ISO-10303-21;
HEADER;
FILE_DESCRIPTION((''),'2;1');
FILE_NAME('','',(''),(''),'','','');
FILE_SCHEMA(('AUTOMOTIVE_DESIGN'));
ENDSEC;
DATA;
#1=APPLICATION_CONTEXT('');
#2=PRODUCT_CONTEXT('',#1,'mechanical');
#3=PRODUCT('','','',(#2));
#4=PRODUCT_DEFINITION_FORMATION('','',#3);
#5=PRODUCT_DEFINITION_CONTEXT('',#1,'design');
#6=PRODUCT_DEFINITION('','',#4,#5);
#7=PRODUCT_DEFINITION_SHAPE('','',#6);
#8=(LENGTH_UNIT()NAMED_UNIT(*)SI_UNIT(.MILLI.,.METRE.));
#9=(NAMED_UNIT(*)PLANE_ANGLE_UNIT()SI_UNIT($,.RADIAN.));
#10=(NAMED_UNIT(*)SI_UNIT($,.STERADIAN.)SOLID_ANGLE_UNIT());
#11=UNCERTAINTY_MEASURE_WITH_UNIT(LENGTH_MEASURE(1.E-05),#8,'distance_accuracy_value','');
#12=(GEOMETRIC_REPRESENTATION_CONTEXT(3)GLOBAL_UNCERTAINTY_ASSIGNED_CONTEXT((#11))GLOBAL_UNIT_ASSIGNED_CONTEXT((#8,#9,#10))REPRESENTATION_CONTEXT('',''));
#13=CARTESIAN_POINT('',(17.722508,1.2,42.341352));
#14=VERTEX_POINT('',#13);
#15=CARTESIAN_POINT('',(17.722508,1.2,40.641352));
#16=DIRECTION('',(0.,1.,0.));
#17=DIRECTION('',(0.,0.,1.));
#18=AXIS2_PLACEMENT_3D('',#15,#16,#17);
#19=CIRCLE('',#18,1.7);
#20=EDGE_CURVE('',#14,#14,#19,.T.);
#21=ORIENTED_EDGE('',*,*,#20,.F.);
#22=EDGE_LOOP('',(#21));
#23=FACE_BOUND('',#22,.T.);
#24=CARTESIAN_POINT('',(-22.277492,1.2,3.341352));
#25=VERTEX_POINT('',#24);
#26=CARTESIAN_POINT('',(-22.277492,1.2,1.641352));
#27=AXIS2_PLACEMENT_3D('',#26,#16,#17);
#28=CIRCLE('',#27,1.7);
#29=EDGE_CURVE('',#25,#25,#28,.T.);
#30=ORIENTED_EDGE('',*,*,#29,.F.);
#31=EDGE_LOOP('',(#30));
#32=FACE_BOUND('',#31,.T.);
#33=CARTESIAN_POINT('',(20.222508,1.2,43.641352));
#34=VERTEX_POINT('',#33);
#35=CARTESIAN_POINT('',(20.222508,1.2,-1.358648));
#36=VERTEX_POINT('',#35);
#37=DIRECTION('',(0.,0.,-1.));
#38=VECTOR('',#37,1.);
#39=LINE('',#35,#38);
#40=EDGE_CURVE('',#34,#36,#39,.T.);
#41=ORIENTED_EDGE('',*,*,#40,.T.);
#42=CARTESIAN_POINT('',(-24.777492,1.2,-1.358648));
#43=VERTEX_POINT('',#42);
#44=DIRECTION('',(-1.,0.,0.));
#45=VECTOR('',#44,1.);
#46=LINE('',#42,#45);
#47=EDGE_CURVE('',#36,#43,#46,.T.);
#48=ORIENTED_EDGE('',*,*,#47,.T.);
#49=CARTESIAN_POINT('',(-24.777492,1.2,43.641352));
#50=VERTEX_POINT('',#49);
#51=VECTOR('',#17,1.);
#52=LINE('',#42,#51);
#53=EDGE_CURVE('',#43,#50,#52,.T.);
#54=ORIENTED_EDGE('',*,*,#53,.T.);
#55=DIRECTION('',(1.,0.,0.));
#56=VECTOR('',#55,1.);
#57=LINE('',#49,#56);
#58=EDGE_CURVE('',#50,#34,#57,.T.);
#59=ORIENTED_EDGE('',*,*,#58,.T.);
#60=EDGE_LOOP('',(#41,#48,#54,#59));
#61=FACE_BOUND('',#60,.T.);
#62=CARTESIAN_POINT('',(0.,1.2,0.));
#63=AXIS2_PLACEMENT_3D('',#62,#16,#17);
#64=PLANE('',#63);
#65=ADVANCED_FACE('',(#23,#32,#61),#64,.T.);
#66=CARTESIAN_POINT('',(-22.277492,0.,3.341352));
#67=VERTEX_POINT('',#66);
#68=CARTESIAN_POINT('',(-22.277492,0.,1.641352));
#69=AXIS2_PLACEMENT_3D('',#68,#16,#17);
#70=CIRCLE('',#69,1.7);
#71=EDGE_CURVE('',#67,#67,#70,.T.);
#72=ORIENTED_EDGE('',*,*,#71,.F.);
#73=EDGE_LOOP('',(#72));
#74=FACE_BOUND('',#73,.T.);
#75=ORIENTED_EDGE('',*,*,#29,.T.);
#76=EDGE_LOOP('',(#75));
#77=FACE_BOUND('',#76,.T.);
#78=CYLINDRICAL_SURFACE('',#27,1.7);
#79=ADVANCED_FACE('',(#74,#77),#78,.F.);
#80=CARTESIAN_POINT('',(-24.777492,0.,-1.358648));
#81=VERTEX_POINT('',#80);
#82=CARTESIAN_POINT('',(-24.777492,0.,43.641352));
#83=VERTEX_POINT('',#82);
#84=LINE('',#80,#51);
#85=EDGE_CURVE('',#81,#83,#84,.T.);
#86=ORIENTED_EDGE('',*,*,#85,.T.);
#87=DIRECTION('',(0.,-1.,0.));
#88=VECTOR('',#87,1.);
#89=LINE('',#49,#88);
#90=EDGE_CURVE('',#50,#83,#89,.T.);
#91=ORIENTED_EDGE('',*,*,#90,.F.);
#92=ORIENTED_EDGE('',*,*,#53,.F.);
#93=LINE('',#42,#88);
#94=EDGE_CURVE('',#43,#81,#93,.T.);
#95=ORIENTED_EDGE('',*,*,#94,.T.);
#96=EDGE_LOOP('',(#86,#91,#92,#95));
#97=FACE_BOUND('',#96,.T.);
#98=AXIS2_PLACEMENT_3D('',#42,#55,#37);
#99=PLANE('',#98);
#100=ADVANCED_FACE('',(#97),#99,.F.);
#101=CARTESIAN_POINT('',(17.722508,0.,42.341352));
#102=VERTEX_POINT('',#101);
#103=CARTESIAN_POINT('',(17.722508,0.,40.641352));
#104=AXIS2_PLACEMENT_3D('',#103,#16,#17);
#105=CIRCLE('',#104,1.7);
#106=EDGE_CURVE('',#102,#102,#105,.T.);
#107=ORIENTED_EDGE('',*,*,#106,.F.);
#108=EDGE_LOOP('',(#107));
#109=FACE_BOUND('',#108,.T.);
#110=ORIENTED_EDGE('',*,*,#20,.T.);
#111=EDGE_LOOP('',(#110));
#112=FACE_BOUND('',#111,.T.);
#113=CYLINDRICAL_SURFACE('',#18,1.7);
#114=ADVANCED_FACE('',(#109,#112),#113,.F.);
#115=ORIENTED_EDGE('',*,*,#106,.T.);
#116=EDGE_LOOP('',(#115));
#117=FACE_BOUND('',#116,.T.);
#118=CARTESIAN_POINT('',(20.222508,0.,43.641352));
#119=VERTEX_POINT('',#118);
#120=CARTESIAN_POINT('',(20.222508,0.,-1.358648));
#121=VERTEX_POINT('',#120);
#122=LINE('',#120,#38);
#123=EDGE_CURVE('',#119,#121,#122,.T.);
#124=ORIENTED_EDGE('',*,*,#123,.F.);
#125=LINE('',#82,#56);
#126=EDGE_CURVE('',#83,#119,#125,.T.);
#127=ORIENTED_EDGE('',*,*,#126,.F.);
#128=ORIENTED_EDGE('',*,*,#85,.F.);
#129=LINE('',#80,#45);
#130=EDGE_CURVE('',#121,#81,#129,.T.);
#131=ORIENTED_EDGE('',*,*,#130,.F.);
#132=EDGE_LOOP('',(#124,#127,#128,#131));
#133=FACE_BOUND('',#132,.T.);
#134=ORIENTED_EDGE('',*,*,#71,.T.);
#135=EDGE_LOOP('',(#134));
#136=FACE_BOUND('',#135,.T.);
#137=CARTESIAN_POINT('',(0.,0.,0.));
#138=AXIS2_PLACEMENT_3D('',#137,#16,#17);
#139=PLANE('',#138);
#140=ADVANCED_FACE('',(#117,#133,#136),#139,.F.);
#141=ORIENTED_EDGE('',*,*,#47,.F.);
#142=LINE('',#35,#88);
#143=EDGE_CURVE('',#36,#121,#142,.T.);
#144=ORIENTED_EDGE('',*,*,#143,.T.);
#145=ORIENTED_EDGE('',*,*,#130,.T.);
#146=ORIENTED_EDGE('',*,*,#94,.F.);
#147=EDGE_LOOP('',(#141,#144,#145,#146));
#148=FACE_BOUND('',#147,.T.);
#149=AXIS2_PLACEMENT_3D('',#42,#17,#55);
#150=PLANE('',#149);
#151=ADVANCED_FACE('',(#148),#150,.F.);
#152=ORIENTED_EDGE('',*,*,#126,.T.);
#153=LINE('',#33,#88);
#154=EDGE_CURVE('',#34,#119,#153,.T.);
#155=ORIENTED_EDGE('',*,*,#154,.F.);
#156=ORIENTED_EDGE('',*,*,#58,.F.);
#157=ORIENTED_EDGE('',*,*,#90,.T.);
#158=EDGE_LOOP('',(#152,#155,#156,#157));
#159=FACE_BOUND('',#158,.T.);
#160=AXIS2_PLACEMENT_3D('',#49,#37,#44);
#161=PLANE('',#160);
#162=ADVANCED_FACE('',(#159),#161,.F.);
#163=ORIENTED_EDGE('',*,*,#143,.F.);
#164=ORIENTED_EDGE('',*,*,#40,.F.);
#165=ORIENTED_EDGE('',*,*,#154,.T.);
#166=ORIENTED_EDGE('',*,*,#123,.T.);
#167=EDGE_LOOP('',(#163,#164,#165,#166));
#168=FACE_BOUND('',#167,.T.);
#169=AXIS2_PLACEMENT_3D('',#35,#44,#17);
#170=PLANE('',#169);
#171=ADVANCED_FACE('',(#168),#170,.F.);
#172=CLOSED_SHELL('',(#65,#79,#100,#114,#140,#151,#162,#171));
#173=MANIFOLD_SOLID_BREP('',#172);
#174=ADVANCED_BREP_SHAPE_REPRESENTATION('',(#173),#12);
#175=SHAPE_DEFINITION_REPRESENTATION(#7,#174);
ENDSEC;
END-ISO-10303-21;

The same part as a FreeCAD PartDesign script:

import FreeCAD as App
import Part
import Sketcher

V = App.Vector
Q = App.Units.Quantity


def add_polygon(sketch, points):
    """Adds a closed chain of lines whose ends are joined by coincident constraints."""
    first, n = sketch.GeometryCount, len(points)
    for a, b in zip(points, points[1:] + points[:1]):
        sketch.addGeometry(Part.LineSegment(App.Vector(*a, 0), App.Vector(*b, 0)), False)
    for i in range(n):
        sketch.addConstraint(Sketcher.Constraint("Coincident", first + i, 2, first + (i + 1) % n, 1))

doc = App.newDocument("Part")
body = doc.addObject("PartDesign::Body", "Body")

# Sketch on XZ plane
sketch1 = body.newObject("Sketcher::SketchObject", "Sketch")
sketch1.AttachmentSupport = (doc.getObject("XZ_Plane"), [""])
sketch1.MapMode = "FlatFace"
add_polygon(sketch1, [(-24.777492, -1.358648), (-24.777492, 43.641352), (20.222508, 43.641352), (20.222508, -1.358648)])  # lines 0-3
sketch1.addConstraint([
    Sketcher.Constraint("Vertical", 0),
    Sketcher.Constraint("Horizontal", 1),
    Sketcher.Constraint("Vertical", 2),
    Sketcher.Constraint("Horizontal", 3),
    Sketcher.Constraint("Equal", 3, 0),
    Sketcher.Constraint("DistanceX", 1, 1, 1, 2, Q("45 mm")),
    Sketcher.Constraint("DistanceX", 0, 2, -1, 1, Q("24.777492 mm")),
    Sketcher.Constraint("DistanceY", -1, 1, 0, 2, Q("43.641352 mm")),
])
pad1 = body.newObject("PartDesign::Pad", "Pad")
pad1.Profile = sketch1
pad1.Length = 1.2
pad1.Reversed = True

# Sketch on XZ plane
sketch2 = body.newObject("Sketcher::SketchObject", "Sketch001")
sketch2.AttachmentSupport = (doc.getObject("XZ_Plane"), [""])
sketch2.MapMode = "FlatFace"
sketch2.AttachmentOffset = App.Placement(V(0, 0, -1.2), App.Rotation())
sketch2.addGeometry([
    Part.Circle(V(-22.277492, 1.641352, 0), V(0, 0, 1), 1.7),
    Part.Circle(V(17.722508, 40.641352, 0), V(0, 0, 1), 1.7),
], False)
sketch2.addConstraint([
    Sketcher.Constraint("Equal", 0, 1),
    Sketcher.Constraint("Diameter", 0, Q("3.4 mm")),
    Sketcher.Constraint("DistanceX", 0, 3, 1, 3, Q("40 mm")),
    Sketcher.Constraint("DistanceY", 0, 3, 1, 3, Q("39 mm")),
    Sketcher.Constraint("DistanceX", 0, 3, -1, 1, Q("22.277492 mm")),
    Sketcher.Constraint("DistanceY", -1, 1, 0, 3, Q("1.641352 mm")),
])
doc.recompute()
hole = body.newObject("PartDesign::Hole", "Hole")
hole.Profile = sketch2
hole.ThreadType = "None"
hole.Diameter = 3.4
hole.DepthType = "ThroughAll"
hole.Reversed = True

doc.recompute()
